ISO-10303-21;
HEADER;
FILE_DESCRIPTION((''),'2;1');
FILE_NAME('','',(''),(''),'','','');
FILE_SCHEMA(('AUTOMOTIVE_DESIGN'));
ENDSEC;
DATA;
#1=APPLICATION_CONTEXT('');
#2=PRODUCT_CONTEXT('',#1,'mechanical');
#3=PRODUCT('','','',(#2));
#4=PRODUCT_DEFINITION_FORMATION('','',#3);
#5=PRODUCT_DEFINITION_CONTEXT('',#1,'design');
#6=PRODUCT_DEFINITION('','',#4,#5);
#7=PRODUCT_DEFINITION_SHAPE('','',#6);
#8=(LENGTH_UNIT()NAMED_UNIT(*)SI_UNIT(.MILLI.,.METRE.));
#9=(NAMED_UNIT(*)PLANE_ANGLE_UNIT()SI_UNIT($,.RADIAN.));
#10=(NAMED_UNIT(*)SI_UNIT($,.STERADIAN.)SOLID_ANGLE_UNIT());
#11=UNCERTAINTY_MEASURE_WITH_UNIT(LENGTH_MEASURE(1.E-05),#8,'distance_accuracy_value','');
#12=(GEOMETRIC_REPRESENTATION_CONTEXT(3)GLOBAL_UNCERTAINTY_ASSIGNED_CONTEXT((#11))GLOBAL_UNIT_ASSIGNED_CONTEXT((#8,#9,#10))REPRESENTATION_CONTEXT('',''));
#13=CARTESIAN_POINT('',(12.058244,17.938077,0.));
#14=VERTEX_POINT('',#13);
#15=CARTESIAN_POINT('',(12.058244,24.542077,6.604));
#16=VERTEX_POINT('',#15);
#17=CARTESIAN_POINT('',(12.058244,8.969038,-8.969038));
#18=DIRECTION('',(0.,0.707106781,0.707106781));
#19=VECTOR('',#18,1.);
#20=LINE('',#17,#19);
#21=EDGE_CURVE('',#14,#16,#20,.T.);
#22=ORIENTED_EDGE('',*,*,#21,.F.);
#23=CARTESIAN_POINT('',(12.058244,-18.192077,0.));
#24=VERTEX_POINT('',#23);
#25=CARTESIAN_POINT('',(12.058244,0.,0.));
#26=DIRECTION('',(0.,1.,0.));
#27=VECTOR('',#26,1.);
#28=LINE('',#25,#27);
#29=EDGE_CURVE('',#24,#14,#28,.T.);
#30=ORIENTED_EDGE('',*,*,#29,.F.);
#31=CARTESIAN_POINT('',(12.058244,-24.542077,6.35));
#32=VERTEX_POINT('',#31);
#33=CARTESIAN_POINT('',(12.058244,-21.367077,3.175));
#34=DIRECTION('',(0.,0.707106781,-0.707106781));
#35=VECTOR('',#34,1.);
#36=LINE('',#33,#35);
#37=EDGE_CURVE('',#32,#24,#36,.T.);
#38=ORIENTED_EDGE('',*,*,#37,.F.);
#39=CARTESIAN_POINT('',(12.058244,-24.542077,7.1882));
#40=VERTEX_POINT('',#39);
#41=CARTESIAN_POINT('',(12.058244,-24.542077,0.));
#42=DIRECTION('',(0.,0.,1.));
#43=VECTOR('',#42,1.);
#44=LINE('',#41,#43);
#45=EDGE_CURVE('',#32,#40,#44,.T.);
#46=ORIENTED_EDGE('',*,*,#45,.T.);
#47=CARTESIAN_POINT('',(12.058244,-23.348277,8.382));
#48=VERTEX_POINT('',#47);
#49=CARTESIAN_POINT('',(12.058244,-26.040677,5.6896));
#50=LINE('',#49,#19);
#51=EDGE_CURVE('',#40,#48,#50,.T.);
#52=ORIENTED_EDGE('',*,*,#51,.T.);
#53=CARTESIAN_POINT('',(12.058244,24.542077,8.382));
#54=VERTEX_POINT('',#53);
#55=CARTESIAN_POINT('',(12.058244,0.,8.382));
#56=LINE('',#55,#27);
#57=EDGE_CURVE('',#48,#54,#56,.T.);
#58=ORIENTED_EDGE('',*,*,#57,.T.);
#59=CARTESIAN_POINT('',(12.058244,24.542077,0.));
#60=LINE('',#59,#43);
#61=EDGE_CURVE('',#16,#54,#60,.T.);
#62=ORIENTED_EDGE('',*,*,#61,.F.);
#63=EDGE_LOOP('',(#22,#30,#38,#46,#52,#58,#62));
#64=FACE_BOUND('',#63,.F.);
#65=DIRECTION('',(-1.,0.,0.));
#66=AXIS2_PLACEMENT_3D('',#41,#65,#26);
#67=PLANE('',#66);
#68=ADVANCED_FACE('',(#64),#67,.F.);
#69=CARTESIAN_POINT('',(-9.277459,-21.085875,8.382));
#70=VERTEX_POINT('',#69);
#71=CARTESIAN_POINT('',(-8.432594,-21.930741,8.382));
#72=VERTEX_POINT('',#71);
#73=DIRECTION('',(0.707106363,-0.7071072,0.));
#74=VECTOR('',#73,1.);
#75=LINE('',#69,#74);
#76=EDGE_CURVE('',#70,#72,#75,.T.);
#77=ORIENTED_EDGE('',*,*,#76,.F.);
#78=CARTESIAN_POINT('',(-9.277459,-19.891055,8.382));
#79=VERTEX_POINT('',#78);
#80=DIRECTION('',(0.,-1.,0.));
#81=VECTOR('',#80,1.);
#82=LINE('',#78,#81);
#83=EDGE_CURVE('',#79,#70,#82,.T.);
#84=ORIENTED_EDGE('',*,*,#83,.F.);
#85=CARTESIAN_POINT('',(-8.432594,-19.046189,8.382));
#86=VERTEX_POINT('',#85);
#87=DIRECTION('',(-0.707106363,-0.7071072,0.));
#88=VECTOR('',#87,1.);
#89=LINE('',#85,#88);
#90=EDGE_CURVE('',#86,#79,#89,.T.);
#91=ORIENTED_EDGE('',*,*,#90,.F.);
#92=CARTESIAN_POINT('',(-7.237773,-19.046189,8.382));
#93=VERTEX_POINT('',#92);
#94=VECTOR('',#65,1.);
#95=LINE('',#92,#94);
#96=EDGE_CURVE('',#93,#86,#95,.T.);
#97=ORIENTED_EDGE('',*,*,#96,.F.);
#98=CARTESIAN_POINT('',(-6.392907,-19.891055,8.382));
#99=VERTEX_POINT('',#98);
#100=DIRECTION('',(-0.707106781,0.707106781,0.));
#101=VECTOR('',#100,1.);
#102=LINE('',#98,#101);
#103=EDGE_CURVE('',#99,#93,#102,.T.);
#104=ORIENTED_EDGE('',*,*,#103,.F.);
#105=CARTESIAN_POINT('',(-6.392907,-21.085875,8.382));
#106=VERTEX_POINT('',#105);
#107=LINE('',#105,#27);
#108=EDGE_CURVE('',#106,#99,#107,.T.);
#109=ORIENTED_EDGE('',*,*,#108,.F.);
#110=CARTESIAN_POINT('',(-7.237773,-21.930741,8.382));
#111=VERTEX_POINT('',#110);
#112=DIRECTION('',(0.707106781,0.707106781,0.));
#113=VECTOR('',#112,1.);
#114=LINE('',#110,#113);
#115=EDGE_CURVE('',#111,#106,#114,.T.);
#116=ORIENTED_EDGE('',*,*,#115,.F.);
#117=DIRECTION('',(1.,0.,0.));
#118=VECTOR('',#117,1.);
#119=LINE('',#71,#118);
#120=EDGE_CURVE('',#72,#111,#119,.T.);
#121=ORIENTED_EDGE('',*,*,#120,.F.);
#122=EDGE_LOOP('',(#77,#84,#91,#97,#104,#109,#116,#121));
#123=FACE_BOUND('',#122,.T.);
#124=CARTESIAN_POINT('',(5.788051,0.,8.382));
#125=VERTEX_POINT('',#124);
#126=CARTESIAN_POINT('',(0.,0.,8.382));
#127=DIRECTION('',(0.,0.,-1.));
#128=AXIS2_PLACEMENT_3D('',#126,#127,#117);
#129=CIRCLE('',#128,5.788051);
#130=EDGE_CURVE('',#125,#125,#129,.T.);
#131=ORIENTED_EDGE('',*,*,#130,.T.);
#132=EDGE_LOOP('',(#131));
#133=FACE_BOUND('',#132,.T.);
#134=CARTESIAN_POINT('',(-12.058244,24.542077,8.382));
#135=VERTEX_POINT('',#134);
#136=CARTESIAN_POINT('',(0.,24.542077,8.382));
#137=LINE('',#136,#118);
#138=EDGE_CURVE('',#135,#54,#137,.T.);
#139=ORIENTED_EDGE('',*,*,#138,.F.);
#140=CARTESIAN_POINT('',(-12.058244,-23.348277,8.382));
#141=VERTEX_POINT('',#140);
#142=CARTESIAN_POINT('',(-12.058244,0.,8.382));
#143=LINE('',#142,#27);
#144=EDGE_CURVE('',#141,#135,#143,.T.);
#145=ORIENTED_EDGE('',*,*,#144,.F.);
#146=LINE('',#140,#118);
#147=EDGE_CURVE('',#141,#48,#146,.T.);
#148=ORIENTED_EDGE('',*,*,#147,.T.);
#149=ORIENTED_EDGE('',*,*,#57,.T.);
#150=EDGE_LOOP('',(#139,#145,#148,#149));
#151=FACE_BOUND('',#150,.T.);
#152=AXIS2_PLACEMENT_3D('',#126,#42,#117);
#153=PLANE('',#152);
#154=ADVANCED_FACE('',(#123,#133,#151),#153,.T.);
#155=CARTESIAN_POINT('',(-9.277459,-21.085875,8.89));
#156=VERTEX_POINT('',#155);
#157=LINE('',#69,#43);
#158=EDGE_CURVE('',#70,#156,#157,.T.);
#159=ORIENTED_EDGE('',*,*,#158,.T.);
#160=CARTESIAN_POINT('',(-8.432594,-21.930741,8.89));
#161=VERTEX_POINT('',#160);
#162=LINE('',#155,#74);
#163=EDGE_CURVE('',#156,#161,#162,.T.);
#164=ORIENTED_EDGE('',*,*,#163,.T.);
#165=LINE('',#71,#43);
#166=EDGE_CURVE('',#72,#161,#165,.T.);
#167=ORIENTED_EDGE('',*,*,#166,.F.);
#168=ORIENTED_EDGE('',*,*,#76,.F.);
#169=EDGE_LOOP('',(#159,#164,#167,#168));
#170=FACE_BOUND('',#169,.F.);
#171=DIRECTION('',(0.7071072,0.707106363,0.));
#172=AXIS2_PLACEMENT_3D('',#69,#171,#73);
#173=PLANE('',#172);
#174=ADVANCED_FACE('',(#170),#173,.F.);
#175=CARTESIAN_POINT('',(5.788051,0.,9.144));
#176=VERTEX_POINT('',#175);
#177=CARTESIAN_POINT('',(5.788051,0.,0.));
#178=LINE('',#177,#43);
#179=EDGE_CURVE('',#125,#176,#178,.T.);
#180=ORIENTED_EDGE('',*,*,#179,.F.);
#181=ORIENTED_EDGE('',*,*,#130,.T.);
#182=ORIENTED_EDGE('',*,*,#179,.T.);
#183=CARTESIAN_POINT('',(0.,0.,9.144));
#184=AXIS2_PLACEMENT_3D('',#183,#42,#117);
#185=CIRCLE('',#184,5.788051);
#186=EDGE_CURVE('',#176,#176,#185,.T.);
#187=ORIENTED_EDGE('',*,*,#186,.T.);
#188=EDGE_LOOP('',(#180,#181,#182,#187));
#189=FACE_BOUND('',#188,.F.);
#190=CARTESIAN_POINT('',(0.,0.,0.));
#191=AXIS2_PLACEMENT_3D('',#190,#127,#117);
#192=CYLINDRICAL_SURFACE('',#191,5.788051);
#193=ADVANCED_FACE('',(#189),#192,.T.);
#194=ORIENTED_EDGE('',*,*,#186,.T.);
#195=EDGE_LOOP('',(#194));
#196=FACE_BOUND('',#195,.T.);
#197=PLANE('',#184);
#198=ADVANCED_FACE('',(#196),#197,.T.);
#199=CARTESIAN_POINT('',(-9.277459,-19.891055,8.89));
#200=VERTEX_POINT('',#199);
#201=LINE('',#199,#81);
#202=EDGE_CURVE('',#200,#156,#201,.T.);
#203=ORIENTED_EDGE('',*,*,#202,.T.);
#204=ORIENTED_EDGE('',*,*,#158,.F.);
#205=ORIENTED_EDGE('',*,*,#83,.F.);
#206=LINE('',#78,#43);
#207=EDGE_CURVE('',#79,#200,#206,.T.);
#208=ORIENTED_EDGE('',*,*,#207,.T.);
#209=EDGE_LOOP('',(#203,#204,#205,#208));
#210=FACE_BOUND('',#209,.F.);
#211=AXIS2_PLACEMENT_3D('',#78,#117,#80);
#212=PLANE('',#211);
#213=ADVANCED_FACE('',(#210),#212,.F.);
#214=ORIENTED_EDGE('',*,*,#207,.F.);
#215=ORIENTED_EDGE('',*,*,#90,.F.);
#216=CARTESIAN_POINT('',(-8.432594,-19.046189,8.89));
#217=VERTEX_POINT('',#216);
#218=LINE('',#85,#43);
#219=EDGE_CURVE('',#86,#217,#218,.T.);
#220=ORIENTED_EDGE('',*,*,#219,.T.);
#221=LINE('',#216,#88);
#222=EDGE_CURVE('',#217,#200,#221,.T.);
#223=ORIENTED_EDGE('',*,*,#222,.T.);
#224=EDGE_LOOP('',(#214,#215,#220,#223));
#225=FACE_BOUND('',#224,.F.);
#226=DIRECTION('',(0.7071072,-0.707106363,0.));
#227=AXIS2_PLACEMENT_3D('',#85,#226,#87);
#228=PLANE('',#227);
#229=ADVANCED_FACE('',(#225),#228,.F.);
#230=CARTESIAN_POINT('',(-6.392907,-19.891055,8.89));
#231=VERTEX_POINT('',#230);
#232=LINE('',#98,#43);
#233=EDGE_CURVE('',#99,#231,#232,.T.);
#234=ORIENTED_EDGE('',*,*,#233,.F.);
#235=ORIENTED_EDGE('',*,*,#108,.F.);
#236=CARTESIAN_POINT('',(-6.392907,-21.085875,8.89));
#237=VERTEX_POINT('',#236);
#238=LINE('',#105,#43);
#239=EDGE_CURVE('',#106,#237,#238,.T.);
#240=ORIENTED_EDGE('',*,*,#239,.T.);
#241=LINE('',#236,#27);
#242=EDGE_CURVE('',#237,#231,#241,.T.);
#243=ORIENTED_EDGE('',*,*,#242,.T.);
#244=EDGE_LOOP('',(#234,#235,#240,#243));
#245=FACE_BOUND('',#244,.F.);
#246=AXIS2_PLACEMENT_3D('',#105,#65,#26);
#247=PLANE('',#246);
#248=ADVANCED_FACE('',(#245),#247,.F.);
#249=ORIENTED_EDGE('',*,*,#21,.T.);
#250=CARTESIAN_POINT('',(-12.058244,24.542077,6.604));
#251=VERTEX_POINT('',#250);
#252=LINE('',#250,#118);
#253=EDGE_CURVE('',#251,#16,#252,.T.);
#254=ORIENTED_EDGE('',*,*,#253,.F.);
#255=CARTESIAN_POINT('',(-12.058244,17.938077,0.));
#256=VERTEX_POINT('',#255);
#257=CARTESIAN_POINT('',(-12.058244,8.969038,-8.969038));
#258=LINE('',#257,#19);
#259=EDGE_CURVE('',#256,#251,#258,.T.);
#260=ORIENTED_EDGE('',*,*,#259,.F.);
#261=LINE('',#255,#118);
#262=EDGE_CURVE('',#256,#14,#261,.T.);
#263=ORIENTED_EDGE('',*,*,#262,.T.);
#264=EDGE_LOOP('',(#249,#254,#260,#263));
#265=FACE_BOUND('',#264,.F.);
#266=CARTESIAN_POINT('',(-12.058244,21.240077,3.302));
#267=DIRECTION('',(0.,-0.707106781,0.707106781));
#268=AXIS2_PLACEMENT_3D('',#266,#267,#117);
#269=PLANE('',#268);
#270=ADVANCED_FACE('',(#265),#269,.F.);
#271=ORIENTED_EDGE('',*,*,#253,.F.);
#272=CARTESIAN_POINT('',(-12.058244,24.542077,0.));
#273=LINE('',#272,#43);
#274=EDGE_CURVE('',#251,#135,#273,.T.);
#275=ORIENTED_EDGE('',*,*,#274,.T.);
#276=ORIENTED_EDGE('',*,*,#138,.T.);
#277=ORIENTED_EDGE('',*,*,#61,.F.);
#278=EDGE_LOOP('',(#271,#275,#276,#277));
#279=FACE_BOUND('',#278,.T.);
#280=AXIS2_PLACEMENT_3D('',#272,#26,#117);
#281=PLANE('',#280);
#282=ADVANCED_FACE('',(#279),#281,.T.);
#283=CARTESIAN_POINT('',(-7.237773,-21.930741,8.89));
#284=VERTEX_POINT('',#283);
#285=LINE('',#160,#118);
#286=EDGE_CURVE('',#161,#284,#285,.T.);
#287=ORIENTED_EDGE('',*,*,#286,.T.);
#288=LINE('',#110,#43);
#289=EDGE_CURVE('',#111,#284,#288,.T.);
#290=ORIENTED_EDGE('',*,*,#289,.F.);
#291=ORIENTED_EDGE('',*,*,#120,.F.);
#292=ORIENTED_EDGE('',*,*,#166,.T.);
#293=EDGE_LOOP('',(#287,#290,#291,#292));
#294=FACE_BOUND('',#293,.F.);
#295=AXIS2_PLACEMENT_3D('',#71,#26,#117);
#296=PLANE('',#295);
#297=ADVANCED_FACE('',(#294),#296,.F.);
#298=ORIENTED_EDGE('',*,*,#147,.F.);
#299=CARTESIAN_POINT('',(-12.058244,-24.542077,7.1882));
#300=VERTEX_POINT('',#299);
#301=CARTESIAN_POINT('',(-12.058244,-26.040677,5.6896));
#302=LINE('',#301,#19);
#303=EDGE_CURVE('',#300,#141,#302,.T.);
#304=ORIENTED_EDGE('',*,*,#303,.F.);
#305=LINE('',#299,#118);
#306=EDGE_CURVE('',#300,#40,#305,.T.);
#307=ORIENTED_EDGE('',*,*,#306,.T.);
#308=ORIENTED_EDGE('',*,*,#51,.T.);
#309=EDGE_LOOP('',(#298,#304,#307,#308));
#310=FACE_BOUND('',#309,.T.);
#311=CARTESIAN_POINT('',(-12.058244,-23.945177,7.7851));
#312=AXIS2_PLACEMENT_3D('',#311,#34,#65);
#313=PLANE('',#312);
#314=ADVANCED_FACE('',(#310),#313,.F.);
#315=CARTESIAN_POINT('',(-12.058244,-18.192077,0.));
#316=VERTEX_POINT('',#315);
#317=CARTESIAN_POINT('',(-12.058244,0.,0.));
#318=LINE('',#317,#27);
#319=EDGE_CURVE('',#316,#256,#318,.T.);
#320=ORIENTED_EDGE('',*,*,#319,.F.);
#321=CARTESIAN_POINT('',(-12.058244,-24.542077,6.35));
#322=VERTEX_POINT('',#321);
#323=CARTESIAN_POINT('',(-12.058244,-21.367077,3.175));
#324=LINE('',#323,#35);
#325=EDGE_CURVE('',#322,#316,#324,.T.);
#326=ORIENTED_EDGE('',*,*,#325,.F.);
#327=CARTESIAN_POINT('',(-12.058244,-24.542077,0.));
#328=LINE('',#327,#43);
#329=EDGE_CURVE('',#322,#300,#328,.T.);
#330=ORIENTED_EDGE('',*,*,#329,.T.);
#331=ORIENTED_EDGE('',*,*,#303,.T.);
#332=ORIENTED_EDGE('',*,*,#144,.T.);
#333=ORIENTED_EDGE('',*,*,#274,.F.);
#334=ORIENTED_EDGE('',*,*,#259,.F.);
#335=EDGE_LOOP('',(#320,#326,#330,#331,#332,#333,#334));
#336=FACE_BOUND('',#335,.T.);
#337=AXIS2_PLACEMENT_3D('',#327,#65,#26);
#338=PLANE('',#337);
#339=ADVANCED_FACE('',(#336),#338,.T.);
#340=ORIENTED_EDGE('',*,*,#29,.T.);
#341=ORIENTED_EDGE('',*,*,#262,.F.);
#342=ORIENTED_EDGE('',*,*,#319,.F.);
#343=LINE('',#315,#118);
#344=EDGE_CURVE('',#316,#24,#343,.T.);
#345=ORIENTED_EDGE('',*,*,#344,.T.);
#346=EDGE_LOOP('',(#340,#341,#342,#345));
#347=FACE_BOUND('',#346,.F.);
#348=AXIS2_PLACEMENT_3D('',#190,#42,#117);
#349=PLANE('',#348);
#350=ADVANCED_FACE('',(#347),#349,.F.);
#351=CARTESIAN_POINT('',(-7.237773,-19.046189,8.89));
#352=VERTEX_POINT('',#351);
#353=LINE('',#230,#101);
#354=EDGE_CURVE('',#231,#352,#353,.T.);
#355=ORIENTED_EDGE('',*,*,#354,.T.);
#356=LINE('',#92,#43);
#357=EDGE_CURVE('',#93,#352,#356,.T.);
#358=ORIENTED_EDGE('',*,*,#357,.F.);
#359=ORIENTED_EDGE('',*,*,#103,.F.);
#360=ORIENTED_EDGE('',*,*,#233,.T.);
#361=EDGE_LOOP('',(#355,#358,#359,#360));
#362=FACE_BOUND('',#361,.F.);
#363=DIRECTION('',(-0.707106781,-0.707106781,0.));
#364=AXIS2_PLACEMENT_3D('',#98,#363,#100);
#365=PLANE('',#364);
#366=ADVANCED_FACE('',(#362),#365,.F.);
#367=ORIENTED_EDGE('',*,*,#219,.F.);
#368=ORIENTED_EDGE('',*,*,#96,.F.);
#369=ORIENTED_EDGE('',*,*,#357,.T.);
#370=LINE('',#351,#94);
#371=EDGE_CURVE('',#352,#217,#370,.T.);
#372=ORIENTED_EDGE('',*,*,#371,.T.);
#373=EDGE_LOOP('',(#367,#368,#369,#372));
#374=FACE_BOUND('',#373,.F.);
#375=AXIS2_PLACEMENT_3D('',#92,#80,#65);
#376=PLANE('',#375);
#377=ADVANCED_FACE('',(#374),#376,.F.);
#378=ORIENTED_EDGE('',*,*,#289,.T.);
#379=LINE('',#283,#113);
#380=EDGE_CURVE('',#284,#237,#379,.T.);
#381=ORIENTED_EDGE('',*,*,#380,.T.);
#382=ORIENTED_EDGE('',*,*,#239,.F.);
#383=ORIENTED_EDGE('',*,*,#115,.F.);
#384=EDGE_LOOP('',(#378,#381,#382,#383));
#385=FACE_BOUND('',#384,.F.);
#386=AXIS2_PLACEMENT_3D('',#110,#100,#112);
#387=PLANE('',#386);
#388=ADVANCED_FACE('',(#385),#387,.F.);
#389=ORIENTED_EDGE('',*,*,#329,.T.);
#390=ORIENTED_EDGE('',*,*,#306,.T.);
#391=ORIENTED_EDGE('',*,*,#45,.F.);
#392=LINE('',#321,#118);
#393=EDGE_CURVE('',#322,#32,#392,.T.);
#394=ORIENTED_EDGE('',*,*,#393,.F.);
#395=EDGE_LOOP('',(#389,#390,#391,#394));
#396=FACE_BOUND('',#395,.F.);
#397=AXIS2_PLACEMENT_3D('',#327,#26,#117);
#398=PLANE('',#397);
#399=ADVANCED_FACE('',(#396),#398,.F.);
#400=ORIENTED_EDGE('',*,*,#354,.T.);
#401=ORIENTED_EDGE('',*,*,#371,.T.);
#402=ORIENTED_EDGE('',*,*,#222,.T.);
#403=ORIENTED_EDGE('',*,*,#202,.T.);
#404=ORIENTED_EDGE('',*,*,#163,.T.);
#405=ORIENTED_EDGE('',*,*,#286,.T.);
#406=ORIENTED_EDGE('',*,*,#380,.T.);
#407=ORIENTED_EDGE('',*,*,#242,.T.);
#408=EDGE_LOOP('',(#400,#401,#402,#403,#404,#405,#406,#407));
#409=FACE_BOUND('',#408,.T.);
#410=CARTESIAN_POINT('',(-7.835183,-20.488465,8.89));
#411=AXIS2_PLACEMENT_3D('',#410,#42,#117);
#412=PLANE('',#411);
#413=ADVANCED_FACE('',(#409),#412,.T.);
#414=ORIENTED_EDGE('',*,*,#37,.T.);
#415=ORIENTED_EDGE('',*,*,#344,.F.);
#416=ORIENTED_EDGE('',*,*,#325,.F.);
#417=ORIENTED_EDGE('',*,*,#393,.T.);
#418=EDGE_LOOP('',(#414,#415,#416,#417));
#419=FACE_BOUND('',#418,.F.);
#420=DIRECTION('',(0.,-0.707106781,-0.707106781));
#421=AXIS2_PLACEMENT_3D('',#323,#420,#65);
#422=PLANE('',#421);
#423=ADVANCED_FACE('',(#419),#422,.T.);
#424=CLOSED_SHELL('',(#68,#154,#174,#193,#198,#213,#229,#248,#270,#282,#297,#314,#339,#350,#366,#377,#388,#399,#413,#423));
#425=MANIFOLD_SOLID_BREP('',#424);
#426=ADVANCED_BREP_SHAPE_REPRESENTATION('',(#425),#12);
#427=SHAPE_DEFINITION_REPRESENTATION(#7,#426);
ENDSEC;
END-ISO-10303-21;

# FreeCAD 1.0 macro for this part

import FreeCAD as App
import Part
import Sketcher
Q = App.Units.Quantity


def edges_at(feature, points):
    """Names of the edges that pass closest to the given points."""
    edges = feature.Shape.Edges
    near = lambda p: min(range(len(edges)), key=lambda i: edges[i].distToShape(Part.Vertex(*p))[0])
    return sorted({f"Edge{near(p) + 1}" for p in points})


def add_polygon(sketch, points):
    """Adds a closed chain of lines whose ends are joined by coincident constraints."""
    first, n = sketch.GeometryCount, len(points)
    for a, b in zip(points, points[1:] + points[:1]):
        sketch.addGeometry(Part.LineSegment(App.Vector(*a, 0), App.Vector(*b, 0)), False)
    for i in range(n):
        sketch.addConstraint(Sketcher.Constraint("Coincident", first + i, 2, first + (i + 1) % n, 1))

doc = App.newDocument("Part")
params = doc.addObject("Spreadsheet::Sheet", "Params")
for row, (alias, value) in enumerate([
    ("pad1_length", "0.33 in"),
    ("chamfer_size", "0.25 in"),
    ("chamfer2_size", "0.26 in"),
    ("pad2_length", "0.36 in"),
    ("pad3_length", "0.02 in"),
    ("chamfer3_size", "0.047 in"),
], start=1):
    params.set(f"A{row}", alias)
    params.set(f"B{row}", "=" + value)
    params.setAlias(f"B{row}", alias)

body = doc.addObject("PartDesign::Body", "Body")

# Sketch on XY plane
sketch1 = body.newObject("Sketcher::SketchObject", "Sketch")
sketch1.AttachmentSupport = (doc.getObject("XY_Plane"), [""])
sketch1.MapMode = "FlatFace"
add_polygon(sketch1, [(-12, 25), (-12, -25), (12, -25), (12, 25)])  # lines 0-3
sketch1.addConstraint(Sketcher.Constraint("Vertical", 0))
sketch1.addConstraint(Sketcher.Constraint("Horizontal", 1))
sketch1.addConstraint(Sketcher.Constraint("Vertical", 2))
sketch1.addConstraint(Sketcher.Constraint("Horizontal", 3))
sketch1.addConstraint(Sketcher.Constraint("Symmetric", 0, 2, 2, 2, -1, 1))
sketch1.addConstraint(Sketcher.Constraint("DistanceX", 1, 1, 1, 2, Q("24.116488 mm")))
sketch1.addConstraint(Sketcher.Constraint("DistanceY", 0, 2, 0, 1, Q("49.084154 mm")))
pad1 = body.newObject("PartDesign::Pad", "Pad")
pad1.Profile = sketch1
pad1.setExpression("Length", "Params.pad1_length")
doc.recompute()

chamfer = body.newObject("PartDesign::Chamfer", "Chamfer")
chamfer.Base = (pad1, edges_at(pad1, [(0, -24.542, 0)]))
chamfer.setExpression("Size", "Params.chamfer_size")
doc.recompute()

chamfer2 = body.newObject("PartDesign::Chamfer", "Chamfer001")
chamfer2.Base = (chamfer, edges_at(chamfer, [(0, 24.542, 0)]))
chamfer2.setExpression("Size", "Params.chamfer2_size")

# Sketch on XY plane
sketch2 = body.newObject("Sketcher::SketchObject", "Sketch001")
sketch2.AttachmentSupport = (doc.getObject("XY_Plane"), [""])
sketch2.MapMode = "FlatFace"
sketch2.addGeometry(Part.Circle(App.Vector(0, 0, 0), App.Vector(0, 0, 1), 6), False)
sketch2.addConstraint(Sketcher.Constraint("Coincident", 0, 3, -1, 1))
sketch2.addConstraint(Sketcher.Constraint("Diameter", 0, Q("11.576102 mm")))
pad2 = body.newObject("PartDesign::Pad", "Pad001")
pad2.Profile = sketch2
pad2.setExpression("Length", "Params.pad2_length")

# Sketch on XY plane
sketch3 = body.newObject("Sketcher::SketchObject", "Sketch002")
sketch3.AttachmentSupport = (doc.getObject("XY_Plane"), [""])
sketch3.MapMode = "FlatFace"
sketch3.AttachmentOffset = App.Placement(App.Vector(0, 0, 0.33 * 25.4), App.Rotation())
add_polygon(sketch3, [(-8.4, -21.9), (-7.2, -21.9), (-6.4, -21.1), (-6.4, -19.9), (-7.2, -19), (-8.4, -19), (-9.3, -19.9), (-9.3, -21.1)])  # lines 0-7
sketch3.addConstraint(Sketcher.Constraint("Horizontal", 0))
sketch3.addConstraint(Sketcher.Constraint("Vertical", 2))
sketch3.addConstraint(Sketcher.Constraint("Horizontal", 4))
sketch3.addConstraint(Sketcher.Constraint("Vertical", 6))
sketch3.addConstraint(Sketcher.Constraint("Perpendicular", 1, 3))
sketch3.addConstraint(Sketcher.Constraint("Perpendicular", 3, 5))
sketch3.addConstraint(Sketcher.Constraint("Perpendicular", 5, 7))
sketch3.addConstraint(Sketcher.Constraint("Horizontal", 2, 2, 5, 2))
sketch3.addConstraint(Sketcher.Constraint("Horizontal", 1, 2, 6, 2))
sketch3.addConstraint(Sketcher.Constraint("Vertical", 0, 2, 3, 2))
sketch3.addConstraint(Sketcher.Constraint("Vertical", 4, 2, 7, 2))
sketch3.addConstraint(Sketcher.Constraint("Equal", 4, 2))
sketch3.addConstraint(Sketcher.Constraint("DistanceX", 0, 1, 0, 2, Q("1.194821 mm")))
sketch3.addConstraint(Sketcher.Constraint("Distance", 1, Q("1.194821 mm")))
sketch3.addConstraint(Sketcher.Constraint("DistanceY", 0, 2, -1, 1, Q("21.930741 mm")))
sketch3.addConstraint(Sketcher.Constraint("DistanceX", 5, 2, -1, 1, Q("9.277459 mm")))
pad3 = body.newObject("PartDesign::Pad", "Pad002")
pad3.Profile = sketch3
pad3.setExpression("Length", "Params.pad3_length")
doc.recompute()

chamfer3 = body.newObject("PartDesign::Chamfer", "Chamfer002")
chamfer3.Base = (pad3, edges_at(pad3, [(0, -24.542, 8.382)]))
chamfer3.setExpression("Size", "Params.chamfer3_size")

doc.recompute()
